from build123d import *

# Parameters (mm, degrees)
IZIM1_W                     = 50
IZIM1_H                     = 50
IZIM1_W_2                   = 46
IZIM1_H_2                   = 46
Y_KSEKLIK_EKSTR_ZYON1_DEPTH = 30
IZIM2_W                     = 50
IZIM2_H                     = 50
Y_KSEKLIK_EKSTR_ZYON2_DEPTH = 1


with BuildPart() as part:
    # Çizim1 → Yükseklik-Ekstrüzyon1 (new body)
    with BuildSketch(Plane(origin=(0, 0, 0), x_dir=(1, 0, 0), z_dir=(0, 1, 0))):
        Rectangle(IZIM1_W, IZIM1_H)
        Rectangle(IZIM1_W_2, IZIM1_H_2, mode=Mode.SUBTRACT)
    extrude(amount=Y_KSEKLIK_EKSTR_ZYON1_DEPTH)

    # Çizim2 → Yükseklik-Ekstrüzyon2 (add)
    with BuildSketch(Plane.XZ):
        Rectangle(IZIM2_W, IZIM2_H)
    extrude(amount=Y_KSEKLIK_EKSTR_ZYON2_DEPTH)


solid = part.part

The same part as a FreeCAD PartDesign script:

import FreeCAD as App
import Part
import Sketcher

doc = App.newDocument("Part")
body = doc.addObject("PartDesign::Body", "Body")

sketch1 = body.newObject("Sketcher::SketchObject", "Sketch")
sketch1.AttachmentSupport = (doc.getObject("XZ_Plane"), [""])
sketch1.MapMode = "FlatFace"
sketch1.addGeometry(Part.LineSegment(App.Vector(-25, -25, 0), App.Vector(-25, 25, 0)), False)
sketch1.addGeometry(Part.LineSegment(App.Vector(-25, 25, 0), App.Vector(25, 25, 0)), False)
sketch1.addGeometry(Part.LineSegment(App.Vector(25, 25, 0), App.Vector(25, -25, 0)), False)
sketch1.addGeometry(Part.LineSegment(App.Vector(25, -25, 0), App.Vector(-25, -25, 0)), False)
sketch1.addGeometry(Part.LineSegment(App.Vector(23, 23, 0), App.Vector(-23, 23, 0)), False)
sketch1.addGeometry(Part.LineSegment(App.Vector(-23, 23, 0), App.Vector(-23, -23, 0)), False)
sketch1.addGeometry(Part.LineSegment(App.Vector(-23, -23, 0), App.Vector(23, -23, 0)), False)
sketch1.addGeometry(Part.LineSegment(App.Vector(23, -23, 0), App.Vector(23, 23, 0)), False)
sketch1.addConstraint(Sketcher.Constraint("Coincident", 0, 2, 1, 1))
sketch1.addConstraint(Sketcher.Constraint("Coincident", 1, 2, 2, 1))
sketch1.addConstraint(Sketcher.Constraint("Coincident", 2, 2, 3, 1))
sketch1.addConstraint(Sketcher.Constraint("Coincident", 3, 2, 0, 1))
sketch1.addConstraint(Sketcher.Constraint("Coincident", 4, 2, 5, 1))
sketch1.addConstraint(Sketcher.Constraint("Coincident", 5, 2, 6, 1))
sketch1.addConstraint(Sketcher.Constraint("Coincident", 6, 2, 7, 1))
sketch1.addConstraint(Sketcher.Constraint("Coincident", 7, 2, 4, 1))
sketch1.addConstraint(Sketcher.Constraint("Vertical", 0))
sketch1.addConstraint(Sketcher.Constraint("Horizontal", 1))
sketch1.addConstraint(Sketcher.Constraint("Vertical", 2))
sketch1.addConstraint(Sketcher.Constraint("Horizontal", 3))
sketch1.addConstraint(Sketcher.Constraint("Horizontal", 4))
sketch1.addConstraint(Sketcher.Constraint("Vertical", 5))
sketch1.addConstraint(Sketcher.Constraint("Horizontal", 6))
sketch1.addConstraint(Sketcher.Constraint("Vertical", 7))
sketch1.addConstraint(Sketcher.Constraint("Symmetric", 0, 2, 2, 2, -1, 1))
sketch1.addConstraint(Sketcher.Constraint("Symmetric", 4, 2, 6, 2, -1, 1))
sketch1.addConstraint(Sketcher.Constraint("Equal", 3, 0))
sketch1.addConstraint(Sketcher.Constraint("Equal", 6, 5))
sketch1.addConstraint(Sketcher.Constraint("DistanceX", 1, 1, 1, 2, 50.0))
sketch1.addConstraint(Sketcher.Constraint("DistanceX", 4, 2, 4, 1, 46.0))
pad1 = body.newObject("PartDesign::Pad", "Pad")
pad1.Profile = sketch1
pad1.Length = 30
pad1.Reversed = True

sketch2 = body.newObject("Sketcher::SketchObject", "Sketch001")
sketch2.AttachmentSupport = (doc.getObject("XZ_Plane"), [""])
sketch2.MapMode = "FlatFace"
sketch2.addGeometry(Part.LineSegment(App.Vector(-25, 25, 0), App.Vector(-25, -25, 0)), False)
sketch2.addGeometry(Part.LineSegment(App.Vector(-25, -25, 0), App.Vector(25, -25, 0)), False)
sketch2.addGeometry(Part.LineSegment(App.Vector(25, -25, 0), App.Vector(25, 25, 0)), False)
sketch2.addGeometry(Part.LineSegment(App.Vector(25, 25, 0), App.Vector(-25, 25, 0)), False)
sketch2.addConstraint(Sketcher.Constraint("Coincident", 0, 2, 1, 1))
sketch2.addConstraint(Sketcher.Constraint("Coincident", 1, 2, 2, 1))
sketch2.addConstraint(Sketcher.Constraint("Coincident", 2, 2, 3, 1))
sketch2.addConstraint(Sketcher.Constraint("Coincident", 3, 2, 0, 1))
sketch2.addConstraint(Sketcher.Constraint("Vertical", 0))
sketch2.addConstraint(Sketcher.Constraint("Horizontal", 1))
sketch2.addConstraint(Sketcher.Constraint("Vertical", 2))
sketch2.addConstraint(Sketcher.Constraint("Horizontal", 3))
sketch2.addConstraint(Sketcher.Constraint("Symmetric", 0, 2, 2, 2, -1, 1))
sketch2.addConstraint(Sketcher.Constraint("Equal", 3, 0))
sketch2.addConstraint(Sketcher.Constraint("DistanceX", 1, 1, 1, 2, 50.0))
pad2 = body.newObject("PartDesign::Pad", "Pad001")
pad2.Profile = sketch2
pad2.Length = 1

doc.recompute()
